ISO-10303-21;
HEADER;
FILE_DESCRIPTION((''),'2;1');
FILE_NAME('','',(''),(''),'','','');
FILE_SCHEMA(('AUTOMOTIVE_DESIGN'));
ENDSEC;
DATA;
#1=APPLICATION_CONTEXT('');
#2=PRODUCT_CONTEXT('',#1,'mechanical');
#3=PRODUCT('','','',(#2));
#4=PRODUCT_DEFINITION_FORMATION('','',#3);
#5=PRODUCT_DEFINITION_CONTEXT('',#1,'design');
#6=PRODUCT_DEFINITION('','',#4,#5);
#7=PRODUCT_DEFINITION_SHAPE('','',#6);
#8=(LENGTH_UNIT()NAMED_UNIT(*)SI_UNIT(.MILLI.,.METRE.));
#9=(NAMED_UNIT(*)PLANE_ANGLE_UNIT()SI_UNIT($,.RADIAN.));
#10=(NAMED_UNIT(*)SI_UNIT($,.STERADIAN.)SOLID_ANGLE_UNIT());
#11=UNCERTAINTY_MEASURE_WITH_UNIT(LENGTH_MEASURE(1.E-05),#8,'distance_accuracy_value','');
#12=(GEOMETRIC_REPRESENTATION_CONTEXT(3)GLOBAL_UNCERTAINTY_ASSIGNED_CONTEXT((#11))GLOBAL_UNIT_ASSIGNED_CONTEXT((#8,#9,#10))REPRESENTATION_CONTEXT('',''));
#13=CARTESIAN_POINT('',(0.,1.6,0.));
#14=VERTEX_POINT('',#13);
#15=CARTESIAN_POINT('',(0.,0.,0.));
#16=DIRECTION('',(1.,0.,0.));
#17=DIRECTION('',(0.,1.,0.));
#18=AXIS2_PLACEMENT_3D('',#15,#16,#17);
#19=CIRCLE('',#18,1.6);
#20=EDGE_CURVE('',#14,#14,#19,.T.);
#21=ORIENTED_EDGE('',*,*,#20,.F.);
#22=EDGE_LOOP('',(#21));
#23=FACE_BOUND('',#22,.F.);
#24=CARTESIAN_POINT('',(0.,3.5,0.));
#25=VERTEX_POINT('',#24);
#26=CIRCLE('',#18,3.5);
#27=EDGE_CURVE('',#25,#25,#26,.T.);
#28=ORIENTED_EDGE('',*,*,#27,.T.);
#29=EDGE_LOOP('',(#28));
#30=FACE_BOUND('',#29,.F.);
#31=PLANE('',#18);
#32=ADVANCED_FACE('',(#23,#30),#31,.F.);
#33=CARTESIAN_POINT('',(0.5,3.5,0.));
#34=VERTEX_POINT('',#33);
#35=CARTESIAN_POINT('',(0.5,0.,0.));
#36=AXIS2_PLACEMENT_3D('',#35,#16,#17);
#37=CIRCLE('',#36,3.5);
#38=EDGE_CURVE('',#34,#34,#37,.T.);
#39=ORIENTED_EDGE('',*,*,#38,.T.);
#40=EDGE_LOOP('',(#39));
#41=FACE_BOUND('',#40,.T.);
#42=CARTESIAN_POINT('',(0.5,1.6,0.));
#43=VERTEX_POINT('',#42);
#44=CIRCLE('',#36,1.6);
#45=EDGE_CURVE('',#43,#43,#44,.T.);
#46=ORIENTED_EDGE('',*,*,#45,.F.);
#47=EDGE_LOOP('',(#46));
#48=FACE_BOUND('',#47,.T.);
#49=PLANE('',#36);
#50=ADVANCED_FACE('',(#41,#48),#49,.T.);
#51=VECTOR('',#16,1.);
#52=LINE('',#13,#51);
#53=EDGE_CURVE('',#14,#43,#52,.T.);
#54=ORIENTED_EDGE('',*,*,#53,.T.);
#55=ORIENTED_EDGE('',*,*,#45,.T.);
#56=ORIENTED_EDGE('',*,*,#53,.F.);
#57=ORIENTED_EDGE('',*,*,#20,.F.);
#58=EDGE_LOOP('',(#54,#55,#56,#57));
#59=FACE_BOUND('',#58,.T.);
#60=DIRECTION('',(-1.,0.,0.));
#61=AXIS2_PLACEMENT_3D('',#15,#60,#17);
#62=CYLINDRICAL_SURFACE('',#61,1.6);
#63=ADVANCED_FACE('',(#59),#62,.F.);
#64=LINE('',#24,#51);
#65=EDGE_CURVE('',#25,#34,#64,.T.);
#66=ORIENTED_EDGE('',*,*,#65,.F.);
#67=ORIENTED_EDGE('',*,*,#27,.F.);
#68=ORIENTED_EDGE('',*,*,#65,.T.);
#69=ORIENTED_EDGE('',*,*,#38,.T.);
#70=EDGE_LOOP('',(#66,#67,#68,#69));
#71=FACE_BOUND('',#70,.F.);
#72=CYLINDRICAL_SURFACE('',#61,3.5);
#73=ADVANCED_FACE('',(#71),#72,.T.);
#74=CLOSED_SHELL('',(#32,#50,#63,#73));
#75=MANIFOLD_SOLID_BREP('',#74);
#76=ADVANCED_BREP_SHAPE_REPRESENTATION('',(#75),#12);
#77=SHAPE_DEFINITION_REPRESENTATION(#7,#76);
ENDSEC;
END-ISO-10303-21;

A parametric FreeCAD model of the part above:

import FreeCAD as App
import Part
import Sketcher
from FreeCAD import Vector
Q = App.Units.Quantity

doc = App.newDocument("Part")
body = doc.addObject("PartDesign::Body", "Body")

# Sketch on YZ plane
sketch1 = body.newObject("Sketcher::SketchObject", "Sketch")
sketch1.AttachmentSupport = (doc.getObject("YZ_Plane"), [""])
sketch1.MapMode = "FlatFace"
sketch1.addGeometry(Part.Circle(Vector(0, 0, 0), Vector(0, 0, 1), 3.5), False)
sketch1.addGeometry(Part.Circle(Vector(0, 0, 0), Vector(0, 0, 1), 1.6), False)
sketch1.addConstraint(Sketcher.Constraint("Coincident", 0, 3, -1, 1))
sketch1.addConstraint(Sketcher.Constraint("Coincident", 1, 3, -1, 1))
sketch1.addConstraint(Sketcher.Constraint("Diameter", 0, Q("7 mm")))
sketch1.addConstraint(Sketcher.Constraint("Diameter", 1, Q("3.2 mm")))
pad1 = body.newObject("PartDesign::Pad", "Pad")
pad1.Profile = sketch1
pad1.Length = 0.5

doc.recompute()
